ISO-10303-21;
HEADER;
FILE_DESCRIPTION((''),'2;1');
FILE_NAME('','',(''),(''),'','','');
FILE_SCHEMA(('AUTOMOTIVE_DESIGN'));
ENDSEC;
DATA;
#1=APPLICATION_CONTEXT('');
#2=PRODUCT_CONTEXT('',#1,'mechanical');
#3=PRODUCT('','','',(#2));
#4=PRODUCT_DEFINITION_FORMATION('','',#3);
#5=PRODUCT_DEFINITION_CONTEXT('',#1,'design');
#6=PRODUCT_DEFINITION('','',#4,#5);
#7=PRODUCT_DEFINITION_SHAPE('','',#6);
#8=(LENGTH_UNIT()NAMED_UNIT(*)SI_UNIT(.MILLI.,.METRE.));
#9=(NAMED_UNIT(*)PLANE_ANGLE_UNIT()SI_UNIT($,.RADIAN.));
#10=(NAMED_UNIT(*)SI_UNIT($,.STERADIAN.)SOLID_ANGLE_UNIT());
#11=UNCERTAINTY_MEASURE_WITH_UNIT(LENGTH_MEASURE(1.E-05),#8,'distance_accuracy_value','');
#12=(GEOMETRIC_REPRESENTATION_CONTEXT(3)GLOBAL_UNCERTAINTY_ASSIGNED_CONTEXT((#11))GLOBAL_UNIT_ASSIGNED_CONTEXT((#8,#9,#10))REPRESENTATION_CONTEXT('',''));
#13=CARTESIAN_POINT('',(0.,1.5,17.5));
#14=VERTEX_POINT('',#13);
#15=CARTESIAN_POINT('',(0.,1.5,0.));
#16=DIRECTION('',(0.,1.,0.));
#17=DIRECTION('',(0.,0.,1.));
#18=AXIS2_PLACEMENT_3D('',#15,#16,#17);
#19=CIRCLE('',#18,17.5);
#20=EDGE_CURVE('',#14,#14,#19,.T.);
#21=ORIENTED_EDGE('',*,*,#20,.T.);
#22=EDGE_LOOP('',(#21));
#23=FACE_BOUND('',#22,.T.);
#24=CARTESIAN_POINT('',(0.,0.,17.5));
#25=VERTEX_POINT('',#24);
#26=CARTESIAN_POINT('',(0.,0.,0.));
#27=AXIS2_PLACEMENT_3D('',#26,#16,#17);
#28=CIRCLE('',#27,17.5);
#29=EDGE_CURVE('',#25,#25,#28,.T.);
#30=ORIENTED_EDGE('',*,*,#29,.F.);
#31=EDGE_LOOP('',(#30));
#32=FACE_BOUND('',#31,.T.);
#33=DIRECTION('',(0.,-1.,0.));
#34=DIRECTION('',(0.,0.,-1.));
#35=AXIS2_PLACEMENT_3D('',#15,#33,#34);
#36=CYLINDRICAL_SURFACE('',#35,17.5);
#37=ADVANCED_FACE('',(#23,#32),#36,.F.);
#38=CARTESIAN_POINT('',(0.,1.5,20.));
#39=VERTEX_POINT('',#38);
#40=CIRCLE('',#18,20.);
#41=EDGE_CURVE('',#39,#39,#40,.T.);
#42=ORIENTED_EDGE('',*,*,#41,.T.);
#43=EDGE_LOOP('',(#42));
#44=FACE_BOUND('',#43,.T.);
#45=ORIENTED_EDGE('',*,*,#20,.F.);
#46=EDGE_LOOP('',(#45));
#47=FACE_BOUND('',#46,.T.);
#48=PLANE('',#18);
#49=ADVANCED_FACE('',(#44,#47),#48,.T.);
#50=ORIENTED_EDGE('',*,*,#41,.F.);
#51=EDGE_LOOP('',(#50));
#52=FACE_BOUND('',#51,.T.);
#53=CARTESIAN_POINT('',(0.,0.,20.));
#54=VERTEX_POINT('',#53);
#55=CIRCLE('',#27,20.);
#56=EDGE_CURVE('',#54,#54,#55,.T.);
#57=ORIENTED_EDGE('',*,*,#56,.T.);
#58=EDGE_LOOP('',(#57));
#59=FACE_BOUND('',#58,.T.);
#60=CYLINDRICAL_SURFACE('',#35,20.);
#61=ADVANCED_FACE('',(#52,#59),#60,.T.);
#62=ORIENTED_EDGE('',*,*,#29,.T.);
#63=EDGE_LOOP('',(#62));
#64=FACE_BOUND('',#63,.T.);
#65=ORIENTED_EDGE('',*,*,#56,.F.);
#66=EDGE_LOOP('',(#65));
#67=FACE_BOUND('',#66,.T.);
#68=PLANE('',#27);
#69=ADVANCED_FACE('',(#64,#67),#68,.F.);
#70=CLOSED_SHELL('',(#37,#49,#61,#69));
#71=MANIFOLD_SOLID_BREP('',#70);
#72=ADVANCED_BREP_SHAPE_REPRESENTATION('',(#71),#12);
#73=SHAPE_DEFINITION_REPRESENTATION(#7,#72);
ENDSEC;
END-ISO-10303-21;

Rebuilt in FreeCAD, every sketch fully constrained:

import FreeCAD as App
import Part
import Sketcher
from FreeCAD import Vector
Q = App.Units.Quantity

doc = App.newDocument("Part")
body = doc.addObject("PartDesign::Body", "Body")

# Sketch on XZ plane
sketch1 = doc.addObject("Sketcher::SketchObject", "Sketch")
body.addObject(sketch1)
sketch1.AttachmentSupport = (doc.XZ_Plane, [""])
sketch1.MapMode = "FlatFace"
sketch1.addGeometry(Part.Circle(Vector(0, 0, 0), Vector(0, 0, 1), 20), False)
sketch1.addGeometry(Part.Circle(Vector(0, 0, 0), Vector(0, 0, 1), 18), False)
sketch1.addConstraint(Sketcher.Constraint("Coincident", 0, 3, -1, 1))
sketch1.addConstraint(Sketcher.Constraint("Coincident", 1, 3, -1, 1))
sketch1.addConstraint(Sketcher.Constraint("Diameter", 0, Q("40 mm")))
sketch1.addConstraint(Sketcher.Constraint("Diameter", 1, Q("35 mm")))
pad1 = doc.addObject("PartDesign::Pad", "Pad")
body.addObject(pad1)
pad1.Profile = sketch1
pad1.Length = 1.5
pad1.Reversed = True

doc.recompute()
